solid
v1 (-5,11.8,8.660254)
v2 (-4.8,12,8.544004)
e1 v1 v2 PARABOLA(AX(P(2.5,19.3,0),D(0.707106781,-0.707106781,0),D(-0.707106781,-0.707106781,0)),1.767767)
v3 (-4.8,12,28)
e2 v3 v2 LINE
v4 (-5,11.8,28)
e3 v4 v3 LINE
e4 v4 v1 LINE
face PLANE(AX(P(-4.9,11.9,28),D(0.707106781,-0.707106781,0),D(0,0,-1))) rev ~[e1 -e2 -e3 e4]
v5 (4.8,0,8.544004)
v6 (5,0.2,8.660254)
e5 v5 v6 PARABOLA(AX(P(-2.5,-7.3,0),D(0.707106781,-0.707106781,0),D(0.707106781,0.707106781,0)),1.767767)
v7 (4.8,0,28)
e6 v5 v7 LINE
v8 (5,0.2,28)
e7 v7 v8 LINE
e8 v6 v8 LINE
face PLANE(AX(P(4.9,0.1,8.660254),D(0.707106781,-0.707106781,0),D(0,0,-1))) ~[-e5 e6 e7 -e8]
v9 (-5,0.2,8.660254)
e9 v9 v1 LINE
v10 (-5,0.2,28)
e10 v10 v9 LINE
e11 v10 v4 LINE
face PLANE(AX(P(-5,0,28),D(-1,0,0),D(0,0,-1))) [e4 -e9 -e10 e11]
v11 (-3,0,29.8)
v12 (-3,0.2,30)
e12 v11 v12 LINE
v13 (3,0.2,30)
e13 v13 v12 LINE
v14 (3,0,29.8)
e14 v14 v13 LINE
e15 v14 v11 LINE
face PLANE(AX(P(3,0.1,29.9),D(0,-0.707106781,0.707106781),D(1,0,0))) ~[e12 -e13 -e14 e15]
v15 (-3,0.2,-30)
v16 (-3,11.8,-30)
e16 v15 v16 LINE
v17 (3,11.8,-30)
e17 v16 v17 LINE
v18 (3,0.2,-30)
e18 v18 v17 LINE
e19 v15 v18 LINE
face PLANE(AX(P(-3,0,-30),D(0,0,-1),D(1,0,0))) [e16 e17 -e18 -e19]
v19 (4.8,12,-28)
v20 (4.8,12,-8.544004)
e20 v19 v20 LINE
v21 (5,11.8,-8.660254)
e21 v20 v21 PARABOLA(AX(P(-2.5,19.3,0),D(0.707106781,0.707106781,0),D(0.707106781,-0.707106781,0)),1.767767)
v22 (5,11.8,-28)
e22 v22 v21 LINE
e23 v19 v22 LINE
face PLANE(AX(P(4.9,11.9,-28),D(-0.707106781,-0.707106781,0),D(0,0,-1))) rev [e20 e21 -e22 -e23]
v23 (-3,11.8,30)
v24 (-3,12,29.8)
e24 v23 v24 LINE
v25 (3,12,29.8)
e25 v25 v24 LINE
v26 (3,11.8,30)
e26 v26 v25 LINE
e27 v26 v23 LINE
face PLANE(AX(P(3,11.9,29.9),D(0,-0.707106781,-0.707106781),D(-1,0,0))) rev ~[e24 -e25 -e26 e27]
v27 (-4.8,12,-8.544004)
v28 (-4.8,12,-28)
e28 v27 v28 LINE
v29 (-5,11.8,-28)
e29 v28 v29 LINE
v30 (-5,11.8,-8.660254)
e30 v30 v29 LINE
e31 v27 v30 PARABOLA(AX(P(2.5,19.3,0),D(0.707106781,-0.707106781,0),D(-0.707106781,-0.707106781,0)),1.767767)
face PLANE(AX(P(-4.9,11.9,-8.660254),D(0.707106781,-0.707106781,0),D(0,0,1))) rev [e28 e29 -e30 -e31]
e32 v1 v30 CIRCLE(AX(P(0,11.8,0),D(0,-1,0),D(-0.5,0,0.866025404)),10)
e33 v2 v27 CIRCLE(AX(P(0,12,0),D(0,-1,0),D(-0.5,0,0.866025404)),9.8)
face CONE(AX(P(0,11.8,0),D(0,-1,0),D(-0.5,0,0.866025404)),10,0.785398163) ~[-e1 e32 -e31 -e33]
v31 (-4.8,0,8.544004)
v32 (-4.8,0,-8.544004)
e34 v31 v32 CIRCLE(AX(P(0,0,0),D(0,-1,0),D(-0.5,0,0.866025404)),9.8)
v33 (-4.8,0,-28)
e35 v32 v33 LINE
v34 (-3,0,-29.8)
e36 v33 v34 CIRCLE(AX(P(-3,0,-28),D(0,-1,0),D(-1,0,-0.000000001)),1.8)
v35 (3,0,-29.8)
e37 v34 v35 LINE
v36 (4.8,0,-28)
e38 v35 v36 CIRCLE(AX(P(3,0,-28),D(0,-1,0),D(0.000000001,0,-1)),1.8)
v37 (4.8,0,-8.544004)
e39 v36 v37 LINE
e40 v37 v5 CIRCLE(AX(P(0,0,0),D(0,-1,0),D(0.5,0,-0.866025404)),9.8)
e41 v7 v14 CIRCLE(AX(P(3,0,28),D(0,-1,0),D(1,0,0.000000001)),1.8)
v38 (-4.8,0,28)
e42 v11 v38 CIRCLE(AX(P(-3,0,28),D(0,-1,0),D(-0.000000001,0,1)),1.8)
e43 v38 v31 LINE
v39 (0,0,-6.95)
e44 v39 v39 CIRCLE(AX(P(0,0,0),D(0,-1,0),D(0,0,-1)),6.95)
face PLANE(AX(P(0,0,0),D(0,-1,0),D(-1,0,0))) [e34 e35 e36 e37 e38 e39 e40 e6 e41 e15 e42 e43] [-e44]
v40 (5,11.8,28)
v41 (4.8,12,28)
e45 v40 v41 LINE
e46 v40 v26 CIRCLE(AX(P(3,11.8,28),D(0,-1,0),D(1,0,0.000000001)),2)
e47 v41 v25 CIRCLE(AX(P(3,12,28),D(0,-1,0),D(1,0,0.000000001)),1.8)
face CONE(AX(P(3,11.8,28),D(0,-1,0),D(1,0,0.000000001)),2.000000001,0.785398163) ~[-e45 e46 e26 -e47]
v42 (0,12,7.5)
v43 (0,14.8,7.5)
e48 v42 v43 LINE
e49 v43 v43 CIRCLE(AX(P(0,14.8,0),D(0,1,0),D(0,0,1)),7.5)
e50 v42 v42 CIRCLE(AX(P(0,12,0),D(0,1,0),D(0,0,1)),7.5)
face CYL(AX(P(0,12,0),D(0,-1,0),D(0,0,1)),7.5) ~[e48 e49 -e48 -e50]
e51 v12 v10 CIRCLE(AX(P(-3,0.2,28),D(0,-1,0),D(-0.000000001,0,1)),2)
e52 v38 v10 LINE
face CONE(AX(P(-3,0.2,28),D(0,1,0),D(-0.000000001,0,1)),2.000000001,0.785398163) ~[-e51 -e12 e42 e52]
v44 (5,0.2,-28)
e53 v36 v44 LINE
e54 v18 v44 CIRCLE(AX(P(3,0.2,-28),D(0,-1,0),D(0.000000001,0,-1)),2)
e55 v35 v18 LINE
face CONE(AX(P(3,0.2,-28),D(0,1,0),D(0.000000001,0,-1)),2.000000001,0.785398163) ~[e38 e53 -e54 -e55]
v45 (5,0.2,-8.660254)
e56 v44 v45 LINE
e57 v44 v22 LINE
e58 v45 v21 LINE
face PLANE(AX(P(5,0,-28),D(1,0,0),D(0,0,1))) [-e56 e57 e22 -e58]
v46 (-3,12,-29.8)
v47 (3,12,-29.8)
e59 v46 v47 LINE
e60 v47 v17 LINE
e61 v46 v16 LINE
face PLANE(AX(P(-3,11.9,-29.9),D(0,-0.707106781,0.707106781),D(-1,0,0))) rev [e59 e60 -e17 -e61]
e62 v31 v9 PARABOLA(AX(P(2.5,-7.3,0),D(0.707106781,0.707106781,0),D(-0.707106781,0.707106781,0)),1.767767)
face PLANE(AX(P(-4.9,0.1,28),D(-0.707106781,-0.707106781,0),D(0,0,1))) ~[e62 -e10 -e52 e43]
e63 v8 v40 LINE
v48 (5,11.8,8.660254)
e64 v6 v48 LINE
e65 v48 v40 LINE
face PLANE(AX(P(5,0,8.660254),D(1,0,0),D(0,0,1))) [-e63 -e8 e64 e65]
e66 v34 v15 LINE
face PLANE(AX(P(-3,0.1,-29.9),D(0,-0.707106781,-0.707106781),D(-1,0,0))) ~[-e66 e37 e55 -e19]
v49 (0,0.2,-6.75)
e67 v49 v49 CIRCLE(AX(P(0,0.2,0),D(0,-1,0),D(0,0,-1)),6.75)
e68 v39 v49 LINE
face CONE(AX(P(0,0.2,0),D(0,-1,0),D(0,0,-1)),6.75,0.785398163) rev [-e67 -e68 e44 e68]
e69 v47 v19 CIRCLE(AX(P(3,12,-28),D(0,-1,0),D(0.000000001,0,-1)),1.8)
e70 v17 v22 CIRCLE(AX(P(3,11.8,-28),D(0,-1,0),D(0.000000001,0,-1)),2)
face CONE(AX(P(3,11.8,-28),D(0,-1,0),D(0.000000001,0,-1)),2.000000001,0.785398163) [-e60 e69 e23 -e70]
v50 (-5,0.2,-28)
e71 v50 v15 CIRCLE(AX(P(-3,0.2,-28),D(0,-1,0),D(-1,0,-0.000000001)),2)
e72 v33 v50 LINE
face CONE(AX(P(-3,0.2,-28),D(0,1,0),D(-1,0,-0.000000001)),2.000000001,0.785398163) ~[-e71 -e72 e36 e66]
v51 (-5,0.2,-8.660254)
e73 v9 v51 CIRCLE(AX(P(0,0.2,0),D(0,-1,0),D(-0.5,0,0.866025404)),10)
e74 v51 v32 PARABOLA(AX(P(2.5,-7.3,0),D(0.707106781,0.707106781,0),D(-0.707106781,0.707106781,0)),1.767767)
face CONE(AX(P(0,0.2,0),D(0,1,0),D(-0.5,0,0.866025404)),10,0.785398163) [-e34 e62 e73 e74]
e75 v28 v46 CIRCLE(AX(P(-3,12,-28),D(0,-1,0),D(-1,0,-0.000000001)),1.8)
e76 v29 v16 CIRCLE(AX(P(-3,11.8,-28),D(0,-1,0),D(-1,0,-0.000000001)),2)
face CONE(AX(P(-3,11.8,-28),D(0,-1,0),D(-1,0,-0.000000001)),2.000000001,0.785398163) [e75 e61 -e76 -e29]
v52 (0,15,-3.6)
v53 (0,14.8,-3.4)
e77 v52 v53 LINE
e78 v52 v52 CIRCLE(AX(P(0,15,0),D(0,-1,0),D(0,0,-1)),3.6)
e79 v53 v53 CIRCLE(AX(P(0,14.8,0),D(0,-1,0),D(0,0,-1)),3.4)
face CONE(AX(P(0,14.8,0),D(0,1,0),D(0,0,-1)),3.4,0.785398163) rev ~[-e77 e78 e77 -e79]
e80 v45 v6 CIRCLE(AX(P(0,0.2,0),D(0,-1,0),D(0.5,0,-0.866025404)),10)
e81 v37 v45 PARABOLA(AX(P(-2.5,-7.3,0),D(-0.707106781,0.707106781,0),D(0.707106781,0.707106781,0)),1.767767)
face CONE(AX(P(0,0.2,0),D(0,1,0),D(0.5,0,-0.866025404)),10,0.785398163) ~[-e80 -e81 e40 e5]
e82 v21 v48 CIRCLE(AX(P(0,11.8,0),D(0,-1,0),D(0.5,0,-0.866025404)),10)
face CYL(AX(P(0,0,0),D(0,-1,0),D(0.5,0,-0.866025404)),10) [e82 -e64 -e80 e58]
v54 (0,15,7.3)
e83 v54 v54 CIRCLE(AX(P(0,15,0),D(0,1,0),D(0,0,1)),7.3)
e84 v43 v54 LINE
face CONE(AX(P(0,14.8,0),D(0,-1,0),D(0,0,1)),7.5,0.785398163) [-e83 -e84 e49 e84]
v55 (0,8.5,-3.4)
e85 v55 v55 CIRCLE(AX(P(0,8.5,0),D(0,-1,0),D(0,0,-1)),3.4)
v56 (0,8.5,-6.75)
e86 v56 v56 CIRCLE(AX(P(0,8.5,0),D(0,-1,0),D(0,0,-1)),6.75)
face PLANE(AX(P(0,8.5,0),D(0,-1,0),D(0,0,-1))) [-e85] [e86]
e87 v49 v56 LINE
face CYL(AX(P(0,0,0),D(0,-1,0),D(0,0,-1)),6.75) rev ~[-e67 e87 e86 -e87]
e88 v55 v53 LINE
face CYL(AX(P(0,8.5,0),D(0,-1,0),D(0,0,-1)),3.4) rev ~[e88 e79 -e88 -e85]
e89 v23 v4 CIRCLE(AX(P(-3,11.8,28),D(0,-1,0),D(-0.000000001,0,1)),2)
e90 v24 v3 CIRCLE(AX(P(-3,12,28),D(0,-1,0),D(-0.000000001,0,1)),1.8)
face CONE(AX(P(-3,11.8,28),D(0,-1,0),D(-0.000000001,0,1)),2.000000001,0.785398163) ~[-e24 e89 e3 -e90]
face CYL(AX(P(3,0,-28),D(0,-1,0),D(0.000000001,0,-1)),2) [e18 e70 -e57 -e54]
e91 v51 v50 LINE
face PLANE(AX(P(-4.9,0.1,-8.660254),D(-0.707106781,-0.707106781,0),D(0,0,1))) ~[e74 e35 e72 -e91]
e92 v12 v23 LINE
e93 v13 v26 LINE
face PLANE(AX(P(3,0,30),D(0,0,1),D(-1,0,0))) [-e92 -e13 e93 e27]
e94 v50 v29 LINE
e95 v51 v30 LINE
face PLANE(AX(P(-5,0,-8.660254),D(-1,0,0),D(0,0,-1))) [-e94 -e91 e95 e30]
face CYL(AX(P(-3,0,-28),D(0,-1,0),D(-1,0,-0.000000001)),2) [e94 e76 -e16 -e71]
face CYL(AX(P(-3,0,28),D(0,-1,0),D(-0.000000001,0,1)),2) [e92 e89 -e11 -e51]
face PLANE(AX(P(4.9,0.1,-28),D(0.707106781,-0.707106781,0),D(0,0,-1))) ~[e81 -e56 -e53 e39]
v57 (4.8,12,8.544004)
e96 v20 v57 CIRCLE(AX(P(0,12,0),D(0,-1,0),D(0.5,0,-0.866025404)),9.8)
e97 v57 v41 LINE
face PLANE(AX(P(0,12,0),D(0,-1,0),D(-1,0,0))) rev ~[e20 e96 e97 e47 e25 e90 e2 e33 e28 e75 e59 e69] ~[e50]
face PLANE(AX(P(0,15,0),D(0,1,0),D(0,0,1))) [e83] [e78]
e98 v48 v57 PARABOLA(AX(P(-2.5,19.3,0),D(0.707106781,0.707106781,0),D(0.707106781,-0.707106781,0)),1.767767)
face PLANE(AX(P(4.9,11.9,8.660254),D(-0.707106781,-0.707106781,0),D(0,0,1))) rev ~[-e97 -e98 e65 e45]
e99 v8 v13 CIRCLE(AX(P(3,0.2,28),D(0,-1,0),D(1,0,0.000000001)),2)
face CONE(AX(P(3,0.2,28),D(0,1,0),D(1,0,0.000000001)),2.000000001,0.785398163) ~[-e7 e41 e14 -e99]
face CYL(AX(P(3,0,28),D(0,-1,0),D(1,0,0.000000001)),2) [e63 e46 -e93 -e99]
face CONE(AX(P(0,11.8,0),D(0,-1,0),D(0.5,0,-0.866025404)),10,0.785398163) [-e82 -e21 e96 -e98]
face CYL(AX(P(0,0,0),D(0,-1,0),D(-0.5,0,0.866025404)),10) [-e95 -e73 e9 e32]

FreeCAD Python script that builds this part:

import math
import FreeCAD as App
import Part
import Sketcher
from FreeCAD import Vector


def edges_at(feature, points):
    """Names of the edges that pass closest to the given points."""
    edges = feature.Shape.Edges
    near = lambda p: min(range(len(edges)), key=lambda i: edges[i].distToShape(Part.Vertex(*p))[0])
    return sorted({f"Edge{near(p) + 1}" for p in points})

doc = App.newDocument("Part")
params = doc.addObject("Spreadsheet::Sheet", "Params")
for row, (alias, value) in enumerate([
    ("sketch1_radius", "2 mm"),
    ("sketch1_radius2", "10 mm"),
    ("sketch1_width", "6 mm"),
    ("pad1_length", "12 mm"),
    ("sketch2_diameter", "13.5 mm"),
    ("pocket1_length", "8.5 mm"),
    ("sketch3_diameter", "15 mm"),
    ("pad2_length", "3 mm"),
    ("sketch4_diameter", "6.8 mm"),
    ("chamfer_size", "0.2 mm"),
], start=1):
    params.set(f"A{row}", alias)
    params.set(f"B{row}", "=" + value)
    params.setAlias(f"B{row}", alias)

body = doc.addObject("PartDesign::Body", "Body")

# Sketch on XZ plane
sketch1 = body.newObject("Sketcher::SketchObject", "Sketch")
sketch1.AttachmentSupport = (doc.getObject("XZ_Plane"), [""])
sketch1.MapMode = "FlatFace"
sketch1.addGeometry([
    Part.LineSegment(Vector(-5, 8.7, 0), Vector(-5, 28, 0)),  # 0
    Part.ArcOfCircle(Part.Circle(Vector(-3, 28, 0), Vector(0, 0, 1), 2), math.radians(90), math.radians(180)),  # 1
    Part.LineSegment(Vector(-3, 30, 0), Vector(3, 30, 0)),  # 2
    Part.ArcOfCircle(Part.Circle(Vector(3, 28, 0), Vector(0, 0, 1), 2), math.radians(0), math.radians(90)),  # 3
    Part.LineSegment(Vector(5, 28, 0), Vector(5, 8.7, 0)),  # 4
    Part.ArcOfCircle(Part.Circle(Vector(0, 0, 0), Vector(0, 0, 1), 10), math.radians(-60), math.radians(60)),  # 5
    Part.LineSegment(Vector(5, -8.7, 0), Vector(5, -28, 0)),  # 6
    Part.ArcOfCircle(Part.Circle(Vector(3, -28, 0), Vector(0, 0, 1), 2), math.radians(-90), math.radians(0)),  # 7
    Part.LineSegment(Vector(3, -30, 0), Vector(-3, -30, 0)),  # 8
    Part.ArcOfCircle(Part.Circle(Vector(-3, -28, 0), Vector(0, 0, 1), 2), math.radians(-180), math.radians(-90)),  # 9
    Part.LineSegment(Vector(-5, -28, 0), Vector(-5, -8.7, 0)),  # 10
    Part.ArcOfCircle(Part.Circle(Vector(0, 0, 0), Vector(0, 0, 1), 10), math.radians(120), math.radians(240)),  # 11
], False)
sketch1.addConstraint([
    Sketcher.Constraint("Tangent", 0, 2, 1, 2),
    Sketcher.Constraint("Tangent", 1, 1, 2, 1),
    Sketcher.Constraint("Tangent", 2, 2, 3, 2),
    Sketcher.Constraint("Tangent", 3, 1, 4, 1),
    Sketcher.Constraint("Coincident", 4, 2, 5, 2),
    Sketcher.Constraint("Coincident", 5, 1, 6, 1),
    Sketcher.Constraint("Tangent", 6, 2, 7, 2),
    Sketcher.Constraint("Tangent", 7, 1, 8, 1),
    Sketcher.Constraint("Tangent", 8, 2, 9, 2),
    Sketcher.Constraint("Tangent", 9, 1, 10, 1),
    Sketcher.Constraint("Coincident", 10, 2, 11, 2),
    Sketcher.Constraint("Coincident", 11, 1, 0, 1),
    Sketcher.Constraint("Vertical", 0),
    Sketcher.Constraint("Horizontal", 2),
    Sketcher.Constraint("Vertical", 4),
    Sketcher.Constraint("Vertical", 6),
    Sketcher.Constraint("Horizontal", 8),
    Sketcher.Constraint("Vertical", 10),
    Sketcher.Constraint("Coincident", 5, 3, -1, 1),
    Sketcher.Constraint("Coincident", 11, 3, -1, 1),
    Sketcher.Constraint("Equal", 1, 3),
    Sketcher.Constraint("Equal", 3, 7),
    Sketcher.Constraint("Equal", 7, 9),
    Sketcher.Constraint("Equal", 5, 11),
    Sketcher.Constraint("Symmetric", 1, 3, 7, 3, -1, 1),
    Sketcher.Constraint("Horizontal", 5, 1, 10, 2),
    Sketcher.Constraint("Horizontal", 4, 2, 11, 1),
    Sketcher.Constraint("Radius", 1, 2.0),
    Sketcher.Constraint("Radius", 5, 10.0),
    Sketcher.Constraint("DistanceX", 2, 1, 2, 2, 6.0),
    Sketcher.Constraint("DistanceY", -1, 1, 1, 3, 28.0),
])
sketch1.setExpression("Constraints[27]", "Params.sketch1_radius")
sketch1.setExpression("Constraints[28]", "Params.sketch1_radius2")
sketch1.setExpression("Constraints[29]", "Params.sketch1_width")
pad1 = body.newObject("PartDesign::Pad", "Pad")
pad1.Profile = sketch1
pad1.setExpression("Length", "Params.pad1_length")
pad1.Reversed = True

# Sketch on XZ plane
sketch2 = body.newObject("Sketcher::SketchObject", "Sketch001")
sketch2.AttachmentSupport = (doc.getObject("XZ_Plane"), [""])
sketch2.MapMode = "FlatFace"
sketch2.addGeometry(Part.Circle(Vector(0, 0, 0), Vector(0, 0, 1), 7), False)
sketch2.addConstraint([
    Sketcher.Constraint("Coincident", 0, 3, -1, 1),
    Sketcher.Constraint("Diameter", 0, 13.5),
])
sketch2.setExpression("Constraints[1]", "Params.sketch2_diameter")
pocket1 = body.newObject("PartDesign::Pocket", "Pocket")
pocket1.Profile = sketch2
pocket1.setExpression("Length", "Params.pocket1_length")

# Sketch on XZ plane
sketch3 = body.newObject("Sketcher::SketchObject", "Sketch002")
sketch3.AttachmentSupport = (doc.getObject("XZ_Plane"), [""])
sketch3.MapMode = "FlatFace"
sketch3.AttachmentOffset = App.Placement(Vector(0, 0, -12), App.Rotation())
sketch3.addGeometry(Part.Circle(Vector(0, 0, 0), Vector(0, 0, 1), 8), False)
sketch3.addConstraint([
    Sketcher.Constraint("Coincident", 0, 3, -1, 1),
    Sketcher.Constraint("Diameter", 0, 15.0),
])
sketch3.setExpression("Constraints[1]", "Params.sketch3_diameter")
pad2 = body.newObject("PartDesign::Pad", "Pad001")
pad2.Profile = sketch3
pad2.setExpression("Length", "Params.pad2_length")
pad2.Reversed = True

# Sketch on XZ plane
sketch4 = body.newObject("Sketcher::SketchObject", "Sketch003")
sketch4.AttachmentSupport = (doc.getObject("XZ_Plane"), [""])
sketch4.MapMode = "FlatFace"
sketch4.AttachmentOffset = App.Placement(Vector(0, 0, -8.5), App.Rotation())
sketch4.addGeometry(Part.Circle(Vector(0, 0, 0), Vector(0, 0, 1), 3.4), False)
sketch4.addConstraint([
    Sketcher.Constraint("Coincident", 0, 3, -1, 1),
    Sketcher.Constraint("Diameter", 0, 6.8),
])
sketch4.setExpression("Constraints[1]", "Params.sketch4_diameter")
pocket2 = body.newObject("PartDesign::Pocket", "Pocket001")
pocket2.Profile = sketch4
pocket2.Type = "ThroughAll"
doc.recompute()

chamfer = body.newObject("PartDesign::Chamfer", "Chamfer")
chamfer.Base = (pocket2, edges_at(pocket2, [
    (5, 0, 18.33),
    (4.414, 0, 29.414),
    (4.414, 12, -29.414),
    (0, 0, 30),
    (-4.414, 0, 29.414),
    (-5, 0, 18.33),
    (-10, 0, 0),
    (-5, 0, -18.33),
    (-4.414, 0, -29.414),
    (0, 0, -30),
    (4.414, 0, -29.414),
    (5, 0, -18.33),
    (10, 0, 0),
    (0, 12, -30),
    (-4.414, 12, -29.414),
    (-5, 12, -18.33),
    (-10, 12, 0),
    (-5, 12, 18.33),
    (-4.414, 12, 29.414),
    (0, 0, 6.75),
    (0, 12, 30),
    (0, 15, -7.5),
    (4.414, 12, 29.414),
    (0, 15, 3.4),
    (5, 12, 18.33),
    (10, 12, 0),
    (5, 12, -18.33),
]))
chamfer.setExpression("Size", "Params.chamfer_size")

doc.recompute()
